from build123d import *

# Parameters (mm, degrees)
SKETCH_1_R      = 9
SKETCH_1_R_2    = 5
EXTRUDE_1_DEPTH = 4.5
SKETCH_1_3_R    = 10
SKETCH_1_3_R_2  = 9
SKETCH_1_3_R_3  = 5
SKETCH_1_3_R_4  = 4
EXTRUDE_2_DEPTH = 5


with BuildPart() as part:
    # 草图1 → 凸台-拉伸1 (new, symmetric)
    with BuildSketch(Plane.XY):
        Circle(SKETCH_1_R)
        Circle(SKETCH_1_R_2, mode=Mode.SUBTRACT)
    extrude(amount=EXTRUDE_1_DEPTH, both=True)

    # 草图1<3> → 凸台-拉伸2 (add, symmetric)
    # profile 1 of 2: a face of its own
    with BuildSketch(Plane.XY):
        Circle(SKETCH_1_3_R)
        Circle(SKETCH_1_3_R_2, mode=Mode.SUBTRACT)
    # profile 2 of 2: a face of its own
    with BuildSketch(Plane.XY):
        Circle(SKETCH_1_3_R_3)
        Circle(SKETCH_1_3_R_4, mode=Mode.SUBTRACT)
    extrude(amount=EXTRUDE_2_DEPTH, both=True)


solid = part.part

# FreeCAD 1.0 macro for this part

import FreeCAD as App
import Part
import Sketcher
Q = App.Units.Quantity

doc = App.newDocument("Part")
body = doc.addObject("PartDesign::Body", "Body")

# Sketch on XY plane
sketch1 = body.newObject("Sketcher::SketchObject", "Sketch")
sketch1.AttachmentSupport = (doc.getObject("XY_Plane"), [""])
sketch1.MapMode = "FlatFace"
sketch1.addGeometry(Part.Circle(App.Vector(0, 0, 0), App.Vector(0, 0, 1), 9), False)
sketch1.addGeometry(Part.Circle(App.Vector(0, 0, 0), App.Vector(0, 0, 1), 5), False)
sketch1.addConstraint(Sketcher.Constraint("Coincident", 0, 3, -1, 1))
sketch1.addConstraint(Sketcher.Constraint("Coincident", 1, 3, -1, 1))
sketch1.addConstraint(Sketcher.Constraint("Diameter", 0, Q("18 mm")))
sketch1.addConstraint(Sketcher.Constraint("Diameter", 1, Q("10 mm")))
pad1 = body.newObject("PartDesign::Pad", "Pad")
pad1.Profile = sketch1
pad1.Length = 9
pad1.Midplane = True

# Sketch on XY plane
sketch2 = body.newObject("Sketcher::SketchObject", "Sketch001")
sketch2.AttachmentSupport = (doc.getObject("XY_Plane"), [""])
sketch2.MapMode = "FlatFace"
sketch2.addGeometry(Part.Circle(App.Vector(0, 0, 0), App.Vector(0, 0, 1), 10), False)
sketch2.addGeometry(Part.Circle(App.Vector(0, 0, 0), App.Vector(0, 0, 1), 9), False)
sketch2.addGeometry(Part.Circle(App.Vector(0, 0, 0), App.Vector(0, 0, 1), 5), False)
sketch2.addGeometry(Part.Circle(App.Vector(0, 0, 0), App.Vector(0, 0, 1), 4), False)
sketch2.addConstraint(Sketcher.Constraint("Coincident", 0, 3, -1, 1))
sketch2.addConstraint(Sketcher.Constraint("Coincident", 1, 3, -1, 1))
sketch2.addConstraint(Sketcher.Constraint("Coincident", 2, 3, -1, 1))
sketch2.addConstraint(Sketcher.Constraint("Coincident", 3, 3, -1, 1))
sketch2.addConstraint(Sketcher.Constraint("Diameter", 0, Q("20 mm")))
sketch2.addConstraint(Sketcher.Constraint("Diameter", 1, Q("18 mm")))
sketch2.addConstraint(Sketcher.Constraint("Diameter", 2, Q("10 mm")))
sketch2.addConstraint(Sketcher.Constraint("Diameter", 3, Q("8 mm")))
pad2 = body.newObject("PartDesign::Pad", "Pad001")
pad2.Profile = sketch2
pad2.Length = 10
pad2.Midplane = True

doc.recompute()
